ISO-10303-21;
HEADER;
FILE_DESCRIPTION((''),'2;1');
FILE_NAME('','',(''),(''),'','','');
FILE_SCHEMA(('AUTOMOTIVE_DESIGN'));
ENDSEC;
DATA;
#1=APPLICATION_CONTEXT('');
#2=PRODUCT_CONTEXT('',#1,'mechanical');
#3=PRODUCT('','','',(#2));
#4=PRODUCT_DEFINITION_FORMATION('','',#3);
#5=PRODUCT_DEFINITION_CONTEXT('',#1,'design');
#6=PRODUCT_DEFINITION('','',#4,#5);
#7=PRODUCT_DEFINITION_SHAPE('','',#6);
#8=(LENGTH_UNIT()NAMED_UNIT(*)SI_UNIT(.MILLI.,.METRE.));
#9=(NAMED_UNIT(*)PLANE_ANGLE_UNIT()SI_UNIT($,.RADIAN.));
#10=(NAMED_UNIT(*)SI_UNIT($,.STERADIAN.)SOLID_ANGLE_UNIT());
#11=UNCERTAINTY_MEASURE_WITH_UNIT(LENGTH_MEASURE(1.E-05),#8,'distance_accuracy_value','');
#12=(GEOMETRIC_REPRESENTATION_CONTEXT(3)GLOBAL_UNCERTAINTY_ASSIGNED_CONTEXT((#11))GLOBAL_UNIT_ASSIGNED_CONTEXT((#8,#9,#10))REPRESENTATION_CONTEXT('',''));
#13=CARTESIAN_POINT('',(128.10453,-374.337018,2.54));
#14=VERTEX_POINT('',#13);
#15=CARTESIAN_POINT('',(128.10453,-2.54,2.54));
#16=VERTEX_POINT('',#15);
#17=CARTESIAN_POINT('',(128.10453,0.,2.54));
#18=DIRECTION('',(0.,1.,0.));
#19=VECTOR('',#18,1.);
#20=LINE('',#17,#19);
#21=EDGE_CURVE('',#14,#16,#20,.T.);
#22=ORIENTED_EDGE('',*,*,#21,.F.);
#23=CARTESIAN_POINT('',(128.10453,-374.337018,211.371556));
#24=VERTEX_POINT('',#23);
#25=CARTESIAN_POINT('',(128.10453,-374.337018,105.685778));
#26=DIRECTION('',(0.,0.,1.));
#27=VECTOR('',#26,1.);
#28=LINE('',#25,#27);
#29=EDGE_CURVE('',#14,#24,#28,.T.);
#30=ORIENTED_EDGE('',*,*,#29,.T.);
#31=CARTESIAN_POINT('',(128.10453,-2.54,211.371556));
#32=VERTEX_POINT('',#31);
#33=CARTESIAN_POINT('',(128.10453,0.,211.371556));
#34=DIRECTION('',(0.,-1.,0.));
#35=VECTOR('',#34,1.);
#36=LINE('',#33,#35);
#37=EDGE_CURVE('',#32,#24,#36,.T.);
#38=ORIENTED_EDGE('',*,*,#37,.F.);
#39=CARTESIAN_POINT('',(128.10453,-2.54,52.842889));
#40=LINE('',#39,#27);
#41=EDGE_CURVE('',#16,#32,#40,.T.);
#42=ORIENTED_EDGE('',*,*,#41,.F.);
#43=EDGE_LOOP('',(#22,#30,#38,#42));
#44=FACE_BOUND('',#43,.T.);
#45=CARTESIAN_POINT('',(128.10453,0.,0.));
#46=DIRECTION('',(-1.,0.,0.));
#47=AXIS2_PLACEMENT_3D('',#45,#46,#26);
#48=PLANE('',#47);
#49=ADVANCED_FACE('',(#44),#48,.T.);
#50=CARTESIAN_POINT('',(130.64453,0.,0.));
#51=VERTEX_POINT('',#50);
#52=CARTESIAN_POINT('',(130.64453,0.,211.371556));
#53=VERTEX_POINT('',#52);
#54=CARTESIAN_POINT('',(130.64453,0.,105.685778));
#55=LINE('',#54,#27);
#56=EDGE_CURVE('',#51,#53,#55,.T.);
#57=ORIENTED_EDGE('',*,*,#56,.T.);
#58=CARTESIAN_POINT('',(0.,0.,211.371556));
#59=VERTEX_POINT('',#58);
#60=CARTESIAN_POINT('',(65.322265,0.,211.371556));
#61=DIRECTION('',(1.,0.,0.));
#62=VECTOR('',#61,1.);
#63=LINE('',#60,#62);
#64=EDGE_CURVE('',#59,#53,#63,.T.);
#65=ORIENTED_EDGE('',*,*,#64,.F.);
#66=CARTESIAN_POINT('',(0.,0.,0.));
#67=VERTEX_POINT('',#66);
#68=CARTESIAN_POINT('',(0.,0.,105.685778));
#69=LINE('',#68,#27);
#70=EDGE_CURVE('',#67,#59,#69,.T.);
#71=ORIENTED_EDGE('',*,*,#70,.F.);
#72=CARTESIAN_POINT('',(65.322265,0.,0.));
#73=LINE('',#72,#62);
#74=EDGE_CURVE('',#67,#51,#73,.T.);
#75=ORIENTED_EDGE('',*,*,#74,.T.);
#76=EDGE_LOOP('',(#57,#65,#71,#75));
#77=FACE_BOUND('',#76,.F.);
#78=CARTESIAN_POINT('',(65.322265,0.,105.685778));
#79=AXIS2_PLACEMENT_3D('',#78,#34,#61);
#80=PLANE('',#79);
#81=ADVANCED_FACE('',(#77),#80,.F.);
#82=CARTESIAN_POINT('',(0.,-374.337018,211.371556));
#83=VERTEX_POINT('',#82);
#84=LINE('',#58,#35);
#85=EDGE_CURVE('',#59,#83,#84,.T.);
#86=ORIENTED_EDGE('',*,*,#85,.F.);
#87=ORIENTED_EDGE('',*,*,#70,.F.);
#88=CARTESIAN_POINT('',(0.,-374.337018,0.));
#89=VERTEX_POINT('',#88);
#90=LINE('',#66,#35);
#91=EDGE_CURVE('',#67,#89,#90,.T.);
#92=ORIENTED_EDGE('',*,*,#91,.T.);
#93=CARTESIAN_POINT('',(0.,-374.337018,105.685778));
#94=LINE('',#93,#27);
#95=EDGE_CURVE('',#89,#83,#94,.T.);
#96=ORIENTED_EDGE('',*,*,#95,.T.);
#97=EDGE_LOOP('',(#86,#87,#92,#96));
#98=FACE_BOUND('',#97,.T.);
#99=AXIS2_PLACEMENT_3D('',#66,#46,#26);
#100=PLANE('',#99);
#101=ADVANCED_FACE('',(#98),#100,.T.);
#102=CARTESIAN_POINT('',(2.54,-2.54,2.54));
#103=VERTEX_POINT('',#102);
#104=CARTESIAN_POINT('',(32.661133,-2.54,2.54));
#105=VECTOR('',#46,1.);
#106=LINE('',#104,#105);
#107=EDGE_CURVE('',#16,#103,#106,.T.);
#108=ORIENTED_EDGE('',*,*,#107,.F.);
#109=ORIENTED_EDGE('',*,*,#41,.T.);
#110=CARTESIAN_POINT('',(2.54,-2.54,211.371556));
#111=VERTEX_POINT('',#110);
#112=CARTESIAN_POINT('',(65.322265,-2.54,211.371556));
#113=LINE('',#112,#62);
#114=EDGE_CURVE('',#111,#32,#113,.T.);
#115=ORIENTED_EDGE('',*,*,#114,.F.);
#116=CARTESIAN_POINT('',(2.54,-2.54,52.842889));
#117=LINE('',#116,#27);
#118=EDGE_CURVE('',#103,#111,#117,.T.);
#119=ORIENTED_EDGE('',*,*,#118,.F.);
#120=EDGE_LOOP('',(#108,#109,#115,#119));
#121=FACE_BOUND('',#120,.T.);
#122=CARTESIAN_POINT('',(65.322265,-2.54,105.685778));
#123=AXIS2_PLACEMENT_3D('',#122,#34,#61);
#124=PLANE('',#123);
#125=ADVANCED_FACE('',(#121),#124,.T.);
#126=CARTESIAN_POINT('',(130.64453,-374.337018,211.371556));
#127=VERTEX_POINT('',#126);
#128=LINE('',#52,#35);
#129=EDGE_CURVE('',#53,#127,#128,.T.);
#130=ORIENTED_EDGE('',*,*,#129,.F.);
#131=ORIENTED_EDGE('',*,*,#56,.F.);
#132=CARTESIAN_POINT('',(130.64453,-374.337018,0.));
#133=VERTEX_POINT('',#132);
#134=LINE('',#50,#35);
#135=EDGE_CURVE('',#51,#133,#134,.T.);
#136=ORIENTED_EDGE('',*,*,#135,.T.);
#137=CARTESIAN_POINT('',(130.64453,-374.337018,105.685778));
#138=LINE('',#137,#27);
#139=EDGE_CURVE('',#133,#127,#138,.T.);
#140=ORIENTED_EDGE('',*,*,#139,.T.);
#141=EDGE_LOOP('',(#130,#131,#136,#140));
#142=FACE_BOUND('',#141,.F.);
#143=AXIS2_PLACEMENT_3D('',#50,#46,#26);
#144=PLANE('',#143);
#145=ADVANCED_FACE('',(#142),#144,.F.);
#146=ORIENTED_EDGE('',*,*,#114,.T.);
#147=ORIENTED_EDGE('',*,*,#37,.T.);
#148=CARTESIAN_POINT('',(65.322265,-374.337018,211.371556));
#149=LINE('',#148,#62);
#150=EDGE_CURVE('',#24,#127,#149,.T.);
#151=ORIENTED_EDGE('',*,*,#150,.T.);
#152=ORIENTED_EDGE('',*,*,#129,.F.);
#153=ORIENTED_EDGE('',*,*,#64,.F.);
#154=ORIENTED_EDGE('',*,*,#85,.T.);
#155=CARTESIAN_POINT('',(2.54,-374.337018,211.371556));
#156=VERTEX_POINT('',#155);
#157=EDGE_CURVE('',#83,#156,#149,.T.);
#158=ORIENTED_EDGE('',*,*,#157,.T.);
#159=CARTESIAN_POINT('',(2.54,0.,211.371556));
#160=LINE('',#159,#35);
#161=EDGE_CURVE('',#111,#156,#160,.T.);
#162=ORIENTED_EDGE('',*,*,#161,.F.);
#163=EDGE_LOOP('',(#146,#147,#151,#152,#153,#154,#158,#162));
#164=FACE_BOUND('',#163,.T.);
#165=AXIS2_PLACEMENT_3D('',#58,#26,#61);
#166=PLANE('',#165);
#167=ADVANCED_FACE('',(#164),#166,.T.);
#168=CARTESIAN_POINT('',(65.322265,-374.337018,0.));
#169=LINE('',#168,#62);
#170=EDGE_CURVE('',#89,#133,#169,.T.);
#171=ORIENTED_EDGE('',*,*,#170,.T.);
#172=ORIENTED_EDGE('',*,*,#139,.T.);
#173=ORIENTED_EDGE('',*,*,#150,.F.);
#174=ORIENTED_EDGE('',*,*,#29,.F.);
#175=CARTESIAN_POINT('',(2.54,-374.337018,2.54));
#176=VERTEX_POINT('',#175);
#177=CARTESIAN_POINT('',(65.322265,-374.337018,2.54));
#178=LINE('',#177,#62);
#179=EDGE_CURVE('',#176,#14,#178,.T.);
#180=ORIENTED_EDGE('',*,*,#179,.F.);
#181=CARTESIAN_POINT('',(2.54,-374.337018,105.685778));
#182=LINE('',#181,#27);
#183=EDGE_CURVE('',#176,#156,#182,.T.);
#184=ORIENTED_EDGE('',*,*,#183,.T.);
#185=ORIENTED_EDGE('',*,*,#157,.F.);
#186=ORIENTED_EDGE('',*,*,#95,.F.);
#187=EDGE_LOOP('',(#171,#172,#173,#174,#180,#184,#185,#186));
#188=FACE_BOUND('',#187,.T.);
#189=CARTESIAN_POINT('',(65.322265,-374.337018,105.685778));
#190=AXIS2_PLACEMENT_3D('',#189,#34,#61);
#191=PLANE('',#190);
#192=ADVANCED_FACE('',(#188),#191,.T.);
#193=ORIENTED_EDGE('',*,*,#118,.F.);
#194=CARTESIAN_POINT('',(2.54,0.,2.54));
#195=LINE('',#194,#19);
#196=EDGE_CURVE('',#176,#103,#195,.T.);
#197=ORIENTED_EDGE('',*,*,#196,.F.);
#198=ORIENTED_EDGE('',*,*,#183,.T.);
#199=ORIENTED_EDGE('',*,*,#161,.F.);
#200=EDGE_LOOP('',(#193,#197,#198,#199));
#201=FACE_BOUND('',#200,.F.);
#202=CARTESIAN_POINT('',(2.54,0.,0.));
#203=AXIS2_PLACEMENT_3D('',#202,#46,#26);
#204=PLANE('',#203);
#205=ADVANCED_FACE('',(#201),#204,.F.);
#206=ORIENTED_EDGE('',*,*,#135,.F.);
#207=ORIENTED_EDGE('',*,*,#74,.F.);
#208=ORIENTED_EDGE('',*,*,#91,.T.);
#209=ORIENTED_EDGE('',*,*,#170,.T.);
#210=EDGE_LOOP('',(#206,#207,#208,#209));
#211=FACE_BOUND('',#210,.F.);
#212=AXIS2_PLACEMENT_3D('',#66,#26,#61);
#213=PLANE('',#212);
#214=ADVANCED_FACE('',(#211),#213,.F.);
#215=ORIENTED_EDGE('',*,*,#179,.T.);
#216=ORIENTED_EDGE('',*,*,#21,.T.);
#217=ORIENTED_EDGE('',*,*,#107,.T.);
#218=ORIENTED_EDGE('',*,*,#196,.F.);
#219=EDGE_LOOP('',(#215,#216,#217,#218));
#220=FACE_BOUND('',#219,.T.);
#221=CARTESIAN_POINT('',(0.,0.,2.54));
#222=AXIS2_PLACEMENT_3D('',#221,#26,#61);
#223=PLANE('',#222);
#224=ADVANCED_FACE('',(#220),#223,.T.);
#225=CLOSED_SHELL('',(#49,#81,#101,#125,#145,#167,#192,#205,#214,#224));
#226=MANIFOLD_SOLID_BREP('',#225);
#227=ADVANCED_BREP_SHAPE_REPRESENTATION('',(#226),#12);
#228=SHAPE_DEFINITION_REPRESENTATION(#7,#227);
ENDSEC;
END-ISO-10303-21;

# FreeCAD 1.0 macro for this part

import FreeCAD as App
import Part
import Sketcher
from FreeCAD import Vector
Q = App.Units.Quantity


def faces_at(feature, points):
    """Names of the faces that lie closest to the given points."""
    faces = feature.Shape.Faces
    near = lambda p: min(range(len(faces)), key=lambda i: faces[i].distToShape(Part.Vertex(*p))[0])
    return sorted({f"Face{near(p) + 1}" for p in points})


def add_polygon(sketch, points):
    """Adds a closed chain of lines whose ends are joined by coincident constraints."""
    first, n = sketch.GeometryCount, len(points)
    for a, b in zip(points, points[1:] + points[:1]):
        sketch.addGeometry(Part.LineSegment(App.Vector(*a, 0), App.Vector(*b, 0)), False)
    for i in range(n):
        sketch.addConstraint(Sketcher.Constraint("Coincident", first + i, 2, first + (i + 1) % n, 1))

doc = App.newDocument("Part")
body = doc.addObject("PartDesign::Body", "Body")

# Sketch on XZ plane
sketch1 = doc.addObject("Sketcher::SketchObject", "Sketch")
body.addObject(sketch1)
sketch1.AttachmentSupport = (doc.XZ_Plane, [""])
sketch1.MapMode = "FlatFace"
add_polygon(sketch1, [(0, 211), (0, 0), (131, 0), (131, 211)])  # lines 0-3
sketch1.addConstraint([
    Sketcher.Constraint("Vertical", 0),
    Sketcher.Constraint("Horizontal", 1),
    Sketcher.Constraint("Vertical", 2),
    Sketcher.Constraint("Horizontal", 3),
    Sketcher.Constraint("Coincident", 0, 2, -1, 1),
    Sketcher.Constraint("DistanceX", 1, 1, 1, 2, 130.64453),
    Sketcher.Constraint("DistanceY", 0, 2, 0, 1, 211.371556),
])
pad1 = doc.addObject("PartDesign::Pad", "Pad")
body.addObject(pad1)
pad1.Profile = sketch1
pad1.Length = 374.337018
doc.recompute()

thickness = doc.addObject("PartDesign::Thickness", "Thickness")
body.addObject(thickness)
thickness.Base = (pad1, faces_at(pad1, [(65.322, -374.337, 105.686), (65.322, -187.169, 211.372)]))
thickness.Value = Q("0.1 in")
thickness.Reversed = True
thickness.Join = "Arc"

doc.recompute()
